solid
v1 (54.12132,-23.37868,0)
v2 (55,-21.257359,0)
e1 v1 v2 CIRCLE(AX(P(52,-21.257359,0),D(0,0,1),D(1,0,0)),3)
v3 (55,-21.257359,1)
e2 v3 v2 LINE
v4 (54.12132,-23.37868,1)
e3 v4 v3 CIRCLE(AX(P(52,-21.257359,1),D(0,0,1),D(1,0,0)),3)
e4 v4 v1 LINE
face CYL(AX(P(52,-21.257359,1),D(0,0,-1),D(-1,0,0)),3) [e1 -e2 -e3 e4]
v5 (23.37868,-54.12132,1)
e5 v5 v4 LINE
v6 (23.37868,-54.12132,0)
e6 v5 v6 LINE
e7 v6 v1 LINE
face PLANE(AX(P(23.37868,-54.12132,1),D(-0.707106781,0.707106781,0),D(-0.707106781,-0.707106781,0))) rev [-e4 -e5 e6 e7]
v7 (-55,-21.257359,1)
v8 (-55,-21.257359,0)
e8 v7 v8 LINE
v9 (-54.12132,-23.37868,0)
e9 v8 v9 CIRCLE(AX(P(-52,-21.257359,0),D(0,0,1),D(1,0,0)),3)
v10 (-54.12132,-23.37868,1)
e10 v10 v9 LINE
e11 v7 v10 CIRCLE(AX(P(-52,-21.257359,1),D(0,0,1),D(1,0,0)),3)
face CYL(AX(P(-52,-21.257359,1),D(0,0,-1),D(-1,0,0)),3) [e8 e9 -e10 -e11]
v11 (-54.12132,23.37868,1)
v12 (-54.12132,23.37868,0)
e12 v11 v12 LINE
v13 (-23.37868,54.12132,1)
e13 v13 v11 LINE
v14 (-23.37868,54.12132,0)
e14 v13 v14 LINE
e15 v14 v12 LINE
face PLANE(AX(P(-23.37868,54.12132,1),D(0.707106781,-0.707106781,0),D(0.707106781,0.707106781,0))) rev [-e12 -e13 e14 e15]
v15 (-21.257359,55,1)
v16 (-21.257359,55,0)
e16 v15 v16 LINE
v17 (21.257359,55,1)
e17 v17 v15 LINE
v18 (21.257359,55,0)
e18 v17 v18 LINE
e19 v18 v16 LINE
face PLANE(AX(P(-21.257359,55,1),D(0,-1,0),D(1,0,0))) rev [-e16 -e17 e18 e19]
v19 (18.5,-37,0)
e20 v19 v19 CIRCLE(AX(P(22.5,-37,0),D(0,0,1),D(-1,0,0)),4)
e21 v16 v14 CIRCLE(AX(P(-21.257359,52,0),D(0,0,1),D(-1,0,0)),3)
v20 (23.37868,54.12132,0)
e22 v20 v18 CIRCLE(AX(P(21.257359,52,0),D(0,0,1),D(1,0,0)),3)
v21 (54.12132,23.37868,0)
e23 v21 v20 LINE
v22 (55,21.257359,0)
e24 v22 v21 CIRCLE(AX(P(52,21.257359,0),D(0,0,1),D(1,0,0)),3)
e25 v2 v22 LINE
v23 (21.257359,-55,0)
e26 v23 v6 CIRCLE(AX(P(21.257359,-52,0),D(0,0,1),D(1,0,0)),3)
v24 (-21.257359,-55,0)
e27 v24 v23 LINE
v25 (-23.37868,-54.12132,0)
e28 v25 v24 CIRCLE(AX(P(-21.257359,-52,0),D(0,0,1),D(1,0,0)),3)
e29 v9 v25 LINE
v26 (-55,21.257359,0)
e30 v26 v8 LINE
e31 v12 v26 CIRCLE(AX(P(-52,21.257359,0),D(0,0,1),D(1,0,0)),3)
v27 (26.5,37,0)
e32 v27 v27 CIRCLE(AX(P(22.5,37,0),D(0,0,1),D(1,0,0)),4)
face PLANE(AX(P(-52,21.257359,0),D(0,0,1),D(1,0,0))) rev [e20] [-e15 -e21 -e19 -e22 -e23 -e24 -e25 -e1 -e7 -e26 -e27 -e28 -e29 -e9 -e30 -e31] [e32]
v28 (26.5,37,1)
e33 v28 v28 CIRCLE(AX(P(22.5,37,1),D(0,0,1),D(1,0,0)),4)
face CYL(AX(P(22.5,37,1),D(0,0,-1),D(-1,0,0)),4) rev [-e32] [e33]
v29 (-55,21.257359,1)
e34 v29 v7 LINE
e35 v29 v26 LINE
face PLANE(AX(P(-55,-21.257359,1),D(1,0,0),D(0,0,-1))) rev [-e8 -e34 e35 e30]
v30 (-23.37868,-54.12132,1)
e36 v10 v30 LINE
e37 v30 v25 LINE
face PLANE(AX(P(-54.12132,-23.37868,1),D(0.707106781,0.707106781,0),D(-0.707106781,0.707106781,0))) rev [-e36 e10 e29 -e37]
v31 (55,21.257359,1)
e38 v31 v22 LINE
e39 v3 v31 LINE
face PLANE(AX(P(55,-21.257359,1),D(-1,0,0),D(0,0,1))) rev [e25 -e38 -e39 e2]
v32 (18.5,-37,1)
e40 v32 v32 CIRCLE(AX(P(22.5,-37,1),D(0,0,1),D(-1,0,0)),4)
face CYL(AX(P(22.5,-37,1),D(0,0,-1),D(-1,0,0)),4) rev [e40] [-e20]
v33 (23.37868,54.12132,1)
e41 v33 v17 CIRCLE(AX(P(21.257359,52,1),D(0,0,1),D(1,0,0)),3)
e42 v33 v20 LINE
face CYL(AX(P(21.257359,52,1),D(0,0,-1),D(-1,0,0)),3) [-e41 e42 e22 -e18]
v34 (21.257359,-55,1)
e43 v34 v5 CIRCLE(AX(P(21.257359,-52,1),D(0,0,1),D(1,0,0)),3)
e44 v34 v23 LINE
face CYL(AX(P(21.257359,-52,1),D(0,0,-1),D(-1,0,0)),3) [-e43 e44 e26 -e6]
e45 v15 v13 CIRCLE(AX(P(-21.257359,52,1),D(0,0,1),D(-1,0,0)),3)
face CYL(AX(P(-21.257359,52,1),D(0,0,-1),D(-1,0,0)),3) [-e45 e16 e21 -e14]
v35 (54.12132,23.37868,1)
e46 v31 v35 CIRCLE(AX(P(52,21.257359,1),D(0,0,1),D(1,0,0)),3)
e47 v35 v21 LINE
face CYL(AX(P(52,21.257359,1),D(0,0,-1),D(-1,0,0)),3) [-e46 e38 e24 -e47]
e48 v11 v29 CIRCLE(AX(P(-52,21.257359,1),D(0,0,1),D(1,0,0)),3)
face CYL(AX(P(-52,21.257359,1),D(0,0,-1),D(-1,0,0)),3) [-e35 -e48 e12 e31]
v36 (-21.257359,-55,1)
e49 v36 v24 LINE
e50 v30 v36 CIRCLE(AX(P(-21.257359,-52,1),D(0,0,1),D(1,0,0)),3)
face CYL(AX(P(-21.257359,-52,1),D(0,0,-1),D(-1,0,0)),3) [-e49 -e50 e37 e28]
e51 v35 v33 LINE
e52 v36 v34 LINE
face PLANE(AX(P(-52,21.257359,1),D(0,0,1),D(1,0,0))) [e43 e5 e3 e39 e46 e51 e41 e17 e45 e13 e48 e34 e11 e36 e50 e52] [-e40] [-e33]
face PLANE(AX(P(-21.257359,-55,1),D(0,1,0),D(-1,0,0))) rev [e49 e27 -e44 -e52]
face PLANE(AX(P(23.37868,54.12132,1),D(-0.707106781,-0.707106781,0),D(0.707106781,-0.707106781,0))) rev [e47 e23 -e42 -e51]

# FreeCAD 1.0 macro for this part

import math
import FreeCAD as App
import Part
import Sketcher

V = App.Vector

doc = App.newDocument("Part")
params = doc.addObject("Spreadsheet::Sheet", "Params")
for row, (alias, value) in enumerate([
    ("sketch1_diameter", "8 mm"),
    ("sketch1_radius", "3 mm"),
    ("pad1_length", "1 mm"),
], start=1):
    params.set(f"A{row}", alias)
    params.set(f"B{row}", "=" + value)
    params.setAlias(f"B{row}", alias)

body = doc.addObject("PartDesign::Body", "Body")

# Sketch on XY plane
sketch1 = body.newObject("Sketcher::SketchObject", "Sketch")
sketch1.AttachmentSupport = (doc.getObject("XY_Plane"), [""])
sketch1.MapMode = "FlatFace"
sketch1.addGeometry(Part.LineSegment(V(55, -21.3, 0), V(55, 21.3, 0)), False)
sketch1.addGeometry(Part.ArcOfCircle(Part.Circle(V(52, 21.3, 0), V(0, 0, 1), 3), math.radians(0), math.radians(45)), False)
sketch1.addGeometry(Part.LineSegment(V(54.1, 23.4, 0), V(23.4, 54.1, 0)), False)
sketch1.addGeometry(Part.ArcOfCircle(Part.Circle(V(21.3, 52, 0), V(0, 0, 1), 3), math.radians(45), math.radians(90)), False)
sketch1.addGeometry(Part.LineSegment(V(21.3, 55, 0), V(-21.3, 55, 0)), False)
sketch1.addGeometry(Part.ArcOfCircle(Part.Circle(V(-21.3, 52, 0), V(0, 0, 1), 3), math.radians(90), math.radians(135)), False)
sketch1.addGeometry(Part.LineSegment(V(-23.4, 54.1, 0), V(-54.1, 23.4, 0)), False)
sketch1.addGeometry(Part.ArcOfCircle(Part.Circle(V(-52, 21.3, 0), V(0, 0, 1), 3), math.radians(135), math.radians(180)), False)
sketch1.addGeometry(Part.LineSegment(V(-55, 21.3, 0), V(-55, -21.3, 0)), False)
sketch1.addGeometry(Part.ArcOfCircle(Part.Circle(V(-52, -21.3, 0), V(0, 0, 1), 3), math.radians(180), math.radians(225)), False)
sketch1.addGeometry(Part.LineSegment(V(-54.1, -23.4, 0), V(-23.4, -54.1, 0)), False)
sketch1.addGeometry(Part.ArcOfCircle(Part.Circle(V(-21.3, -52, 0), V(0, 0, 1), 3), math.radians(-135), math.radians(-90)), False)
sketch1.addGeometry(Part.LineSegment(V(-21.3, -55, 0), V(21.3, -55, 0)), False)
sketch1.addGeometry(Part.ArcOfCircle(Part.Circle(V(21.3, -52, 0), V(0, 0, 1), 3), math.radians(-90), math.radians(-45)), False)
sketch1.addGeometry(Part.LineSegment(V(23.4, -54.1, 0), V(54.1, -23.4, 0)), False)
sketch1.addGeometry(Part.ArcOfCircle(Part.Circle(V(52, -21.3, 0), V(0, 0, 1), 3), math.radians(-45), math.radians(0)), False)
sketch1.addGeometry(Part.Circle(V(22.5, -37, 0), V(0, 0, 1), 4), False)
sketch1.addGeometry(Part.Circle(V(22.5, 37, 0), V(0, 0, 1), 4), False)
sketch1.addConstraint(Sketcher.Constraint("Tangent", 0, 2, 1, 1))
sketch1.addConstraint(Sketcher.Constraint("Tangent", 1, 2, 2, 1))
sketch1.addConstraint(Sketcher.Constraint("Tangent", 2, 2, 3, 1))
sketch1.addConstraint(Sketcher.Constraint("Tangent", 3, 2, 4, 1))
sketch1.addConstraint(Sketcher.Constraint("Tangent", 4, 2, 5, 1))
sketch1.addConstraint(Sketcher.Constraint("Tangent", 5, 2, 6, 1))
sketch1.addConstraint(Sketcher.Constraint("Tangent", 6, 2, 7, 1))
sketch1.addConstraint(Sketcher.Constraint("Tangent", 7, 2, 8, 1))
sketch1.addConstraint(Sketcher.Constraint("Tangent", 8, 2, 9, 1))
sketch1.addConstraint(Sketcher.Constraint("Tangent", 9, 2, 10, 1))
sketch1.addConstraint(Sketcher.Constraint("Tangent", 10, 2, 11, 1))
sketch1.addConstraint(Sketcher.Constraint("Tangent", 11, 2, 12, 1))
sketch1.addConstraint(Sketcher.Constraint("Tangent", 12, 2, 13, 1))
sketch1.addConstraint(Sketcher.Constraint("Tangent", 13, 2, 14, 1))
sketch1.addConstraint(Sketcher.Constraint("Tangent", 14, 2, 15, 1))
sketch1.addConstraint(Sketcher.Constraint("Tangent", 15, 2, 0, 1))
sketch1.addConstraint(Sketcher.Constraint("Vertical", 0))
sketch1.addConstraint(Sketcher.Constraint("Horizontal", 4))
sketch1.addConstraint(Sketcher.Constraint("Vertical", 8))
sketch1.addConstraint(Sketcher.Constraint("Horizontal", 12))
sketch1.addConstraint(Sketcher.Constraint("Equal", 1, 3))
sketch1.addConstraint(Sketcher.Constraint("Equal", 3, 5))
sketch1.addConstraint(Sketcher.Constraint("Equal", 5, 7))
sketch1.addConstraint(Sketcher.Constraint("Equal", 7, 9))
sketch1.addConstraint(Sketcher.Constraint("Equal", 9, 11))
sketch1.addConstraint(Sketcher.Constraint("Equal", 11, 13))
sketch1.addConstraint(Sketcher.Constraint("Equal", 13, 15))
sketch1.addConstraint(Sketcher.Constraint("Equal", 16, 17))
sketch1.addConstraint(Sketcher.Constraint("Symmetric", 1, 3, 9, 3, -1, 1))
sketch1.addConstraint(Sketcher.Constraint("Symmetric", 3, 3, 11, 3, -1, 1))
sketch1.addConstraint(Sketcher.Constraint("Symmetric", 5, 2, 13, 2, -1, 1))
sketch1.addConstraint(Sketcher.Constraint("Symmetric", 2, 2, 5, 2, -2))
sketch1.addConstraint(Sketcher.Constraint("Symmetric", 16, 3, 17, 3, -1))
sketch1.addConstraint(Sketcher.Constraint("Perpendicular", 2, 6))
sketch1.addConstraint(Sketcher.Constraint("Equal", 12, 0))
sketch1.addConstraint(Sketcher.Constraint("Diameter", 16, 8.0))
sketch1.addConstraint(Sketcher.Constraint("Radius", 1, 3.0))
sketch1.addConstraint(Sketcher.Constraint("DistanceX", -1, 1, 1, 3, 52.0))
sketch1.addConstraint(Sketcher.Constraint("DistanceY", 16, 3, -1, 1, 37.0))
sketch1.addConstraint(Sketcher.Constraint("DistanceX", -1, 1, 16, 3, 22.5))
sketch1.addConstraint(Sketcher.Constraint("DistanceX", 4, 2, 4, 1, 42.514719))
sketch1.setExpression("Constraints[35]", "Params.sketch1_diameter")
sketch1.setExpression("Constraints[36]", "Params.sketch1_radius")
pad1 = body.newObject("PartDesign::Pad", "Pad")
pad1.Profile = sketch1
pad1.setExpression("Length", "Params.pad1_length")

doc.recompute()
